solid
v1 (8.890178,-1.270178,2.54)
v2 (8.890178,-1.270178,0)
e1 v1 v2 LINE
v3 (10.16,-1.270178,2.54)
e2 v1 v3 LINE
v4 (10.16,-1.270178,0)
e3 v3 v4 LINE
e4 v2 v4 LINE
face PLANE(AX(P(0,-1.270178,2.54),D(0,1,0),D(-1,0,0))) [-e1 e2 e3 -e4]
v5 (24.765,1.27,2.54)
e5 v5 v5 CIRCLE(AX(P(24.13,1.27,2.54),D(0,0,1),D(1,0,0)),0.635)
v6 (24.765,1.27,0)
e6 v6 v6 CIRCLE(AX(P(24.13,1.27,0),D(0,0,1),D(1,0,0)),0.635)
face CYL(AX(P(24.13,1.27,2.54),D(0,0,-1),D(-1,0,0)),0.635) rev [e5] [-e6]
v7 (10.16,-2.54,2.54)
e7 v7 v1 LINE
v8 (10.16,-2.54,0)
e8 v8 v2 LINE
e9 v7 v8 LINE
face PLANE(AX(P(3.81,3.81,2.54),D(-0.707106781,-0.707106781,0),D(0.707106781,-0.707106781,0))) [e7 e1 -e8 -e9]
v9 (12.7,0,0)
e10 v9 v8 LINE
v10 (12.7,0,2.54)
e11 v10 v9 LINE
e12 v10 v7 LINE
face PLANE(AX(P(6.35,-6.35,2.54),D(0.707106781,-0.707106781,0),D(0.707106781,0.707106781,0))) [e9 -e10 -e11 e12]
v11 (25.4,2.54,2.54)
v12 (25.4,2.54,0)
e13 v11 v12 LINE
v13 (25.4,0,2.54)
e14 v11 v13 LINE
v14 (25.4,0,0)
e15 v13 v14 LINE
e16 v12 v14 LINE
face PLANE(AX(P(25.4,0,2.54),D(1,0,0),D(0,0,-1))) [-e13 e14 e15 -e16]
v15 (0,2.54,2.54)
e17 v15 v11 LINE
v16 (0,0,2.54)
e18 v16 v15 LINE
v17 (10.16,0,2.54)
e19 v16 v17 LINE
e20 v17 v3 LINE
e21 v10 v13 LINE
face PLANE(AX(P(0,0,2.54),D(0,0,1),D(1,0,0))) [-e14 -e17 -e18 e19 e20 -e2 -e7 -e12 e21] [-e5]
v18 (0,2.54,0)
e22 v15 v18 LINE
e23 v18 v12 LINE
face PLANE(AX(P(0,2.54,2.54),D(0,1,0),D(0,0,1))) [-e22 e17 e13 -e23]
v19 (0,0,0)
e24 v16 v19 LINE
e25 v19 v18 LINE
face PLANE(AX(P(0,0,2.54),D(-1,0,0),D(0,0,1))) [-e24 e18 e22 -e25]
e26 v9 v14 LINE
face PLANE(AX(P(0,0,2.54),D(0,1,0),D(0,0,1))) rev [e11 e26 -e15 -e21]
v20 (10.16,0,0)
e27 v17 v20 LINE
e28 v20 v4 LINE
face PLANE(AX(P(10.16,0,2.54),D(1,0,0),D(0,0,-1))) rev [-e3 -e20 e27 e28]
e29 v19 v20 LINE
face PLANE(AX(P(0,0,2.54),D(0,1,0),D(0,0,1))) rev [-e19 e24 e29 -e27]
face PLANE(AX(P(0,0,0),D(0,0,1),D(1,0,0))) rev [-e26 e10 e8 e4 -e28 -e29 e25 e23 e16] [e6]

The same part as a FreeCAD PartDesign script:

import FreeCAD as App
import Part
import Sketcher
from FreeCAD import Vector
Q = App.Units.Quantity

doc = App.newDocument("Part")
params = doc.addObject("Spreadsheet::Sheet", "Params")
for row, (alias, value) in enumerate([
    ("sketch1_diameter", "0.05 in"),
    ("sketch1_width", "1 in"),
    ("sketch1_width2", "0.5 in"),
    ("sketch1_width3", "0.4 in"),
    ("sketch1_height", "0.1 in"),
    ("pad1_length", "0.1 in"),
], start=1):
    params.set(f"A{row}", alias)
    params.set(f"B{row}", "=" + value)
    params.setAlias(f"B{row}", alias)

body = doc.addObject("PartDesign::Body", "Body")

# Sketch on XY plane
sketch1 = body.newObject("Sketcher::SketchObject", "Sketch")
sketch1.AttachmentSupport = (doc.getObject("XY_Plane"), [""])
sketch1.MapMode = "FlatFace"
sketch1.addGeometry([
    Part.LineSegment(Vector(10.2, -2.5, 0), Vector(12.7, 0, 0)),  # 0
    Part.LineSegment(Vector(12.7, 0, 0), Vector(25.4, 0, 0)),  # 1
    Part.LineSegment(Vector(25.4, 0, 0), Vector(25.4, 2.5, 0)),  # 2
    Part.LineSegment(Vector(25.4, 2.5, 0), Vector(0, 2.5, 0)),  # 3
    Part.LineSegment(Vector(0, 2.5, 0), Vector(0, 0, 0)),  # 4
    Part.LineSegment(Vector(0, 0, 0), Vector(10.2, 0, 0)),  # 5
    Part.LineSegment(Vector(10.2, 0, 0), Vector(10.2, -1.3, 0)),  # 6
    Part.LineSegment(Vector(10.2, -1.3, 0), Vector(8.9, -1.3, 0)),  # 7
    Part.LineSegment(Vector(8.9, -1.3, 0), Vector(10.2, -2.5, 0)),  # 8
    Part.Circle(Vector(24.1, 1.3, 0), Vector(0, 0, 1), 0.6),  # 9
], False)
sketch1.addConstraint([
    Sketcher.Constraint("Coincident", 0, 2, 1, 1),
    Sketcher.Constraint("Coincident", 1, 2, 2, 1),
    Sketcher.Constraint("Coincident", 2, 2, 3, 1),
    Sketcher.Constraint("Coincident", 3, 2, 4, 1),
    Sketcher.Constraint("Coincident", 4, 2, 5, 1),
    Sketcher.Constraint("Coincident", 5, 2, 6, 1),
    Sketcher.Constraint("Coincident", 6, 2, 7, 1),
    Sketcher.Constraint("Coincident", 7, 2, 8, 1),
    Sketcher.Constraint("Coincident", 8, 2, 0, 1),
    Sketcher.Constraint("Horizontal", 1),
    Sketcher.Constraint("Vertical", 2),
    Sketcher.Constraint("Horizontal", 3),
    Sketcher.Constraint("Vertical", 4),
    Sketcher.Constraint("Horizontal", 5),
    Sketcher.Constraint("Vertical", 6),
    Sketcher.Constraint("Horizontal", 7),
    Sketcher.Constraint("Coincident", 4, 2, -1, 1),
    Sketcher.Constraint("PointOnObject", 0, 2, -1),
    Sketcher.Constraint("Perpendicular", 0, 8),
    Sketcher.Constraint("Vertical", 6, 2, 8, 2),
    Sketcher.Constraint("Diameter", 9, Q("0.05 in")),
    Sketcher.Constraint("DistanceX", 3, 2, 3, 1, Q("1 in")),
    Sketcher.Constraint("DistanceX", 1, 1, 1, 2, Q("0.5 in")),
    Sketcher.Constraint("DistanceX", 5, 1, 5, 2, Q("0.4 in")),
    Sketcher.Constraint("DistanceY", 2, 1, 2, 2, Q("0.1 in")),
    Sketcher.Constraint("Angle", 0, Q("45 deg")),
    Sketcher.Constraint("DistanceX", -1, 1, 9, 3, Q("0.95 in")),
    Sketcher.Constraint("DistanceY", -1, 1, 9, 3, Q("0.05 in")),
    Sketcher.Constraint("Distance", 8, 1.795799),
])
sketch1.setExpression("Constraints[20]", "Params.sketch1_diameter")
sketch1.setExpression("Constraints[21]", "Params.sketch1_width")
sketch1.setExpression("Constraints[22]", "Params.sketch1_width2")
sketch1.setExpression("Constraints[23]", "Params.sketch1_width3")
sketch1.setExpression("Constraints[24]", "Params.sketch1_height")
pad1 = body.newObject("PartDesign::Pad", "Pad")
pad1.Profile = sketch1
pad1.setExpression("Length", "Params.pad1_length")

doc.recompute()
